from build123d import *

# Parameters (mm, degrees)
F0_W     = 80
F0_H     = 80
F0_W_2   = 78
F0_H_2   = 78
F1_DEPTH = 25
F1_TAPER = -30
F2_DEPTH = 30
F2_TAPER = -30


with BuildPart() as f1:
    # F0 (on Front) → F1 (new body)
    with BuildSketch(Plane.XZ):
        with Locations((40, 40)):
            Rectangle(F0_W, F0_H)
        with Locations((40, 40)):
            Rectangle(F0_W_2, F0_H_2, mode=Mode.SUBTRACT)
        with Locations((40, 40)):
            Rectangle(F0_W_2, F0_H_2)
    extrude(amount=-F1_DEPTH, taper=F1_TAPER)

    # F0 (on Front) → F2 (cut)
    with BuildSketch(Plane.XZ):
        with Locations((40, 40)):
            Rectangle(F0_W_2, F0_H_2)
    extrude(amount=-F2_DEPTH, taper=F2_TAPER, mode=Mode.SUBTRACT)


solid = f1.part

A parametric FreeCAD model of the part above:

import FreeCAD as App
import Part
import Sketcher

V = App.Vector


def add_polygon(sketch, points):
    """Adds a closed chain of lines whose ends are joined by coincident constraints."""
    first, n = sketch.GeometryCount, len(points)
    for a, b in zip(points, points[1:] + points[:1]):
        sketch.addGeometry(Part.LineSegment(App.Vector(*a, 0), App.Vector(*b, 0)), False)
    for i in range(n):
        sketch.addConstraint(Sketcher.Constraint("Coincident", first + i, 2, first + (i + 1) % n, 1))

doc = App.newDocument("Part")
body = doc.addObject("PartDesign::Body", "Body")

# Sketch on XZ plane
sketch1 = body.newObject("Sketcher::SketchObject", "Sketch")
sketch1.AttachmentSupport = (doc.getObject("XZ_Plane"), [""])
sketch1.MapMode = "FlatFace"
add_polygon(sketch1, [(0, 80), (0, 0), (80, 0), (80, 80)])  # lines 0-3
sketch1.addConstraint([
    Sketcher.Constraint("Vertical", 0),
    Sketcher.Constraint("Horizontal", 1),
    Sketcher.Constraint("Vertical", 2),
    Sketcher.Constraint("Horizontal", 3),
    Sketcher.Constraint("Coincident", 0, 2, -1, 1),
    Sketcher.Constraint("Equal", 3, 0),
    Sketcher.Constraint("DistanceX", 1, 1, 1, 2, 80.0),
])
pad1 = body.newObject("PartDesign::Pad", "Pad")
pad1.Profile = sketch1
pad1.Length = 25
pad1.Reversed = True
pad1.TaperAngle = 30

# Sketch on XZ plane
sketch2 = body.newObject("Sketcher::SketchObject", "Sketch001")
sketch2.AttachmentSupport = (doc.getObject("XZ_Plane"), [""])
sketch2.MapMode = "FlatFace"
add_polygon(sketch2, [(1, 79), (1, 1), (79, 1), (79, 79)])  # lines 0-3
sketch2.addConstraint([
    Sketcher.Constraint("Vertical", 0),
    Sketcher.Constraint("Horizontal", 1),
    Sketcher.Constraint("Vertical", 2),
    Sketcher.Constraint("Horizontal", 3),
    Sketcher.Constraint("Equal", 3, 0),
    Sketcher.Constraint("DistanceX", 1, 1, 1, 2, 78.0),
    Sketcher.Constraint("DistanceX", -1, 1, 0, 2, 1.0),
    Sketcher.Constraint("DistanceY", -1, 1, 0, 2, 1.0),
])
pocket1 = body.newObject("PartDesign::Pocket", "Pocket")
pocket1.Profile = sketch2
pocket1.Length = 30
pocket1.TaperAngle = 30

doc.recompute()
